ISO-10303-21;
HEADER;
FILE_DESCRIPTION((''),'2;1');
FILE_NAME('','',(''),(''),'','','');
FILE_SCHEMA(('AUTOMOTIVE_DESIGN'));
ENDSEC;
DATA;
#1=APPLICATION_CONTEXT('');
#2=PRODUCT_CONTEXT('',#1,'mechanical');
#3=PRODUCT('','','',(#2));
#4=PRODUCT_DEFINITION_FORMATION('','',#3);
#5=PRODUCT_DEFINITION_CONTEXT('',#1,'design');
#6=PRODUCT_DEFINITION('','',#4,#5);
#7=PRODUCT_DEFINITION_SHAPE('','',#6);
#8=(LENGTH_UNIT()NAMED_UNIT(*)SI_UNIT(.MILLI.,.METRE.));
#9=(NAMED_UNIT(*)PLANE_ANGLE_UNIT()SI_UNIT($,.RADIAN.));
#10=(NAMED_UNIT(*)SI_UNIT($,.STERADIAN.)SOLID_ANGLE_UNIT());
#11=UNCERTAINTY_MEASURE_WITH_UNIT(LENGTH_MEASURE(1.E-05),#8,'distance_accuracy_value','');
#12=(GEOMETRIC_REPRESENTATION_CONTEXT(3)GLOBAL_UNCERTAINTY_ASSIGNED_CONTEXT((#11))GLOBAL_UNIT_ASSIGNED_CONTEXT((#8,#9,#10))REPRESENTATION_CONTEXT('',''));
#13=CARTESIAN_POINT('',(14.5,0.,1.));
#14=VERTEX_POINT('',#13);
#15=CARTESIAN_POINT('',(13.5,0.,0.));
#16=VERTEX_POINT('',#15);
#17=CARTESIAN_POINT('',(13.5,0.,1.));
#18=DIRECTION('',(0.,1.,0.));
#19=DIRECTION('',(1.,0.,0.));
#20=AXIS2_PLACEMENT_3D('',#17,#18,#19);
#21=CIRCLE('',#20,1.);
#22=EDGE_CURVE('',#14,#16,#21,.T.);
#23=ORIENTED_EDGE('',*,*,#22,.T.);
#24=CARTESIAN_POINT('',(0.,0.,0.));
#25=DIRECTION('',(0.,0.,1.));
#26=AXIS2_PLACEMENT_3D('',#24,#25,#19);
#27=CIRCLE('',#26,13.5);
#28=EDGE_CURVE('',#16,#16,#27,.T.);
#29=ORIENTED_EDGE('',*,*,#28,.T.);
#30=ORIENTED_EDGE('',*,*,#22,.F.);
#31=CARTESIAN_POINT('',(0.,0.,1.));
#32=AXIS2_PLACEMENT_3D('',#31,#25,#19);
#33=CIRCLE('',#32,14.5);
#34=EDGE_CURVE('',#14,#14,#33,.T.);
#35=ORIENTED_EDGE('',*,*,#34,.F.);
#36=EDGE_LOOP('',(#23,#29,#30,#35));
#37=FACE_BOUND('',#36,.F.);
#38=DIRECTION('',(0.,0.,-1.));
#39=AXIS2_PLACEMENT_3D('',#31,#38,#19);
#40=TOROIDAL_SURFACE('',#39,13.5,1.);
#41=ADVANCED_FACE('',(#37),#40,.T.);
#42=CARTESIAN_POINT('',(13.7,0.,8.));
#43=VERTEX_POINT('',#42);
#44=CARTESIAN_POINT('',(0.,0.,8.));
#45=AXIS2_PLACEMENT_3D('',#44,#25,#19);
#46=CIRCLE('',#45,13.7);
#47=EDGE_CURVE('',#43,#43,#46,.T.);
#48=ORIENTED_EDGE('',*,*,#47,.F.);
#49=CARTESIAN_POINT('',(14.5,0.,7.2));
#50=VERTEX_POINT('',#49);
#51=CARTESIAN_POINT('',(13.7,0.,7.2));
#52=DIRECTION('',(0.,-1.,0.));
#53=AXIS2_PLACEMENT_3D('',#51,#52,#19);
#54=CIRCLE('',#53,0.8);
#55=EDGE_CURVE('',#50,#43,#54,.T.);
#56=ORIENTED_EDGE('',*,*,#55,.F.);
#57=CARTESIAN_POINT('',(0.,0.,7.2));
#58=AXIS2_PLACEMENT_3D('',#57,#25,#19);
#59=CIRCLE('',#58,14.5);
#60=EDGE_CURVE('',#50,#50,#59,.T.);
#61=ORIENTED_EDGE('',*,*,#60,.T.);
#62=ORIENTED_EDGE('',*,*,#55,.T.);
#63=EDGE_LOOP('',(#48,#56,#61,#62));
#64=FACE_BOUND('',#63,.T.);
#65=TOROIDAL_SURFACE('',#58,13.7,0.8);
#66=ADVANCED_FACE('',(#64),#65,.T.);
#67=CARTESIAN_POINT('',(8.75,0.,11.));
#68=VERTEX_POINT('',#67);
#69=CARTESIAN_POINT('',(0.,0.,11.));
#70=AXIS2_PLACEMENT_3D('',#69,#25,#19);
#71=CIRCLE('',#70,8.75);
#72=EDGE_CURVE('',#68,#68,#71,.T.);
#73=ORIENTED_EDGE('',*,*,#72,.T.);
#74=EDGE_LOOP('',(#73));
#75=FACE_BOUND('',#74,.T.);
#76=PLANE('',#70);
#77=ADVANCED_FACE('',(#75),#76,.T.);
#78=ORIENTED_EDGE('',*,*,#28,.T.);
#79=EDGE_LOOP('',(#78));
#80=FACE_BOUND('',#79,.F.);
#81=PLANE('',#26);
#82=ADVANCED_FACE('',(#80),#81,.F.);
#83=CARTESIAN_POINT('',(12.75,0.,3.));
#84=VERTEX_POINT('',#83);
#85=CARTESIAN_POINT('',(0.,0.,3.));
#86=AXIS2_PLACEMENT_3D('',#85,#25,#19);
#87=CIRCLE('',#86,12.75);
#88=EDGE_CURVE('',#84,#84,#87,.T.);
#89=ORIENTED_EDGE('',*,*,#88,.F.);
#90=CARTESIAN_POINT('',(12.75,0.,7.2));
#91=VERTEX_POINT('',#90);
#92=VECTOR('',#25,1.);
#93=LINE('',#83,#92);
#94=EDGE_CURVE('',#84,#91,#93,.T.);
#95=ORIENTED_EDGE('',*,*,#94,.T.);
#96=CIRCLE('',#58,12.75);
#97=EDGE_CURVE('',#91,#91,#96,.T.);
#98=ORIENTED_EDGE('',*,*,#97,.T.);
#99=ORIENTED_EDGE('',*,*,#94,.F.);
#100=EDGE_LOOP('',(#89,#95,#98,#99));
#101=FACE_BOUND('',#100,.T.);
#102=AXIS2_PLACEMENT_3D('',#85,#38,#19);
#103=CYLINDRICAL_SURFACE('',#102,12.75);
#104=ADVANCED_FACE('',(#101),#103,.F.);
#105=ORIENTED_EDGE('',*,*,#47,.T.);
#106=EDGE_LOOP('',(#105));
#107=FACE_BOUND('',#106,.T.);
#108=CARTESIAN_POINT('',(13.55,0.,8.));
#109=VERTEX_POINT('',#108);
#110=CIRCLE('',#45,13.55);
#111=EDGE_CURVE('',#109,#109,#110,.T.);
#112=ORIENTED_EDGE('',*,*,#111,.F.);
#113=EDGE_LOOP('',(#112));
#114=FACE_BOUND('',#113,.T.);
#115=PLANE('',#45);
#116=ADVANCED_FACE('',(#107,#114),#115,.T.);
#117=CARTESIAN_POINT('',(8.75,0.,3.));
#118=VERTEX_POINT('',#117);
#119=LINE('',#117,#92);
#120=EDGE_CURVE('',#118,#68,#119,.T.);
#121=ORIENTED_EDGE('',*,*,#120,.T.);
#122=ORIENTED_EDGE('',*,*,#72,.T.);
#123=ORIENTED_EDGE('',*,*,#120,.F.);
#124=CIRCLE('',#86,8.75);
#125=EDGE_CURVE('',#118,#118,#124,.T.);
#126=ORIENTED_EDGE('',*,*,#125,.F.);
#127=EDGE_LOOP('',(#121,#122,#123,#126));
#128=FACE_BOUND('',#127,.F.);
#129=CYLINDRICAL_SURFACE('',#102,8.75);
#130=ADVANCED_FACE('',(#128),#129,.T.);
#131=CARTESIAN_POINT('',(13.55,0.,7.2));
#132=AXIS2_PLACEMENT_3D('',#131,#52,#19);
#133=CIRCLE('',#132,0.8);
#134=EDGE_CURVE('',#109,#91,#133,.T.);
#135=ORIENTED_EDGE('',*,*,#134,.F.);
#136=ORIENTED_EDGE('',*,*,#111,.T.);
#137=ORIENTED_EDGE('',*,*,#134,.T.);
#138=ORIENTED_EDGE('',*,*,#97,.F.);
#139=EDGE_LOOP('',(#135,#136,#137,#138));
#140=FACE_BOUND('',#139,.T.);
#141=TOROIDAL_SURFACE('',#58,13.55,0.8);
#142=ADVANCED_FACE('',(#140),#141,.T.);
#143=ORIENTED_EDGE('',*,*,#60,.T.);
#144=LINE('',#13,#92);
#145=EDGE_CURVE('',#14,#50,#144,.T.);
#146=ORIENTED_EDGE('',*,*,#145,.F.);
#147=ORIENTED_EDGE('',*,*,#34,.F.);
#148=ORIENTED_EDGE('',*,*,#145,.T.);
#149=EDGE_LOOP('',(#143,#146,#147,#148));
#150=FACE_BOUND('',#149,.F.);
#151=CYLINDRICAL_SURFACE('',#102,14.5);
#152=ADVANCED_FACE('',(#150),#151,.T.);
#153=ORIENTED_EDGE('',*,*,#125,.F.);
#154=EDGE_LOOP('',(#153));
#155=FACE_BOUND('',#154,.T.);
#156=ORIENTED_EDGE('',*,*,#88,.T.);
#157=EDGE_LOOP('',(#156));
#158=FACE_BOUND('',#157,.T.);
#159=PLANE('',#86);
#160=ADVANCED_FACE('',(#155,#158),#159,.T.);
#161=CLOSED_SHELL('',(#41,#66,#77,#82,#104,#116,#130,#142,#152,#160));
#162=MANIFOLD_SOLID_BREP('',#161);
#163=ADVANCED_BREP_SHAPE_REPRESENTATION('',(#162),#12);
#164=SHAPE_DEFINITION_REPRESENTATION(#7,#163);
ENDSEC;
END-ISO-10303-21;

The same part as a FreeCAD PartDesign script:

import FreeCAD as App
import Part
import Sketcher
Q = App.Units.Quantity


def edges_at(feature, points):
    """Names of the edges that pass closest to the given points."""
    edges = feature.Shape.Edges
    near = lambda p: min(range(len(edges)), key=lambda i: edges[i].distToShape(Part.Vertex(*p))[0])
    return sorted({f"Edge{near(p) + 1}" for p in points})

doc = App.newDocument("Part")
body = doc.addObject("PartDesign::Body", "Body")

# Sketch on XY plane
sketch1 = body.newObject("Sketcher::SketchObject", "Sketch")
sketch1.AttachmentSupport = (doc.getObject("XY_Plane"), [""])
sketch1.MapMode = "FlatFace"
sketch1.addGeometry(Part.Circle(App.Vector(0, 0, 0), App.Vector(0, 0, 1), 14), False)
sketch1.addConstraint(Sketcher.Constraint("Coincident", 0, 3, -1, 1))
sketch1.addConstraint(Sketcher.Constraint("Diameter", 0, Q("29 mm")))
pad1 = body.newObject("PartDesign::Pad", "Pad")
pad1.Profile = sketch1
pad1.Length = 3

# Sketch on XY plane
sketch2 = body.newObject("Sketcher::SketchObject", "Sketch001")
sketch2.AttachmentSupport = (doc.getObject("XY_Plane"), [""])
sketch2.MapMode = "FlatFace"
sketch2.AttachmentOffset = App.Placement(App.Vector(0, 0, 3), App.Rotation())
sketch2.addGeometry(Part.Circle(App.Vector(0, 0, 0), App.Vector(0, 0, 1), 9), False)
sketch2.addConstraint(Sketcher.Constraint("Coincident", 0, 3, -1, 1))
sketch2.addConstraint(Sketcher.Constraint("Diameter", 0, Q("17.5 mm")))
pad2 = body.newObject("PartDesign::Pad", "Pad001")
pad2.Profile = sketch2
pad2.Length = 8
doc.recompute()

fillet = body.newObject("PartDesign::Fillet", "Fillet")
fillet.Base = (pad2, edges_at(pad2, [(-14.5, 0, 0)]))
fillet.Radius = 1

# Sketch on XY plane
sketch3 = body.newObject("Sketcher::SketchObject", "Sketch002")
sketch3.AttachmentSupport = (doc.getObject("XY_Plane"), [""])
sketch3.MapMode = "FlatFace"
sketch3.AttachmentOffset = App.Placement(App.Vector(0, 0, 3), App.Rotation())
sketch3.addGeometry(Part.Circle(App.Vector(0, 0, 0), App.Vector(0, 0, 1), 14), False)
sketch3.addGeometry(Part.Circle(App.Vector(0, 0, 0), App.Vector(0, 0, 1), 13), False)
sketch3.addConstraint(Sketcher.Constraint("Coincident", 0, 3, -1, 1))
sketch3.addConstraint(Sketcher.Constraint("Coincident", 1, 3, -1, 1))
sketch3.addConstraint(Sketcher.Constraint("Diameter", 0, Q("29 mm")))
sketch3.addConstraint(Sketcher.Constraint("Diameter", 1, Q("25.5 mm")))
pad3 = body.newObject("PartDesign::Pad", "Pad002")
pad3.Profile = sketch3
pad3.Length = 5
doc.recompute()

fillet2 = body.newObject("PartDesign::Fillet", "Fillet001")
fillet2.Base = (pad3, edges_at(pad3, [(-14.5, 0, 8), (-12.75, 0, 8)]))
fillet2.Radius = 0.8

doc.recompute()
